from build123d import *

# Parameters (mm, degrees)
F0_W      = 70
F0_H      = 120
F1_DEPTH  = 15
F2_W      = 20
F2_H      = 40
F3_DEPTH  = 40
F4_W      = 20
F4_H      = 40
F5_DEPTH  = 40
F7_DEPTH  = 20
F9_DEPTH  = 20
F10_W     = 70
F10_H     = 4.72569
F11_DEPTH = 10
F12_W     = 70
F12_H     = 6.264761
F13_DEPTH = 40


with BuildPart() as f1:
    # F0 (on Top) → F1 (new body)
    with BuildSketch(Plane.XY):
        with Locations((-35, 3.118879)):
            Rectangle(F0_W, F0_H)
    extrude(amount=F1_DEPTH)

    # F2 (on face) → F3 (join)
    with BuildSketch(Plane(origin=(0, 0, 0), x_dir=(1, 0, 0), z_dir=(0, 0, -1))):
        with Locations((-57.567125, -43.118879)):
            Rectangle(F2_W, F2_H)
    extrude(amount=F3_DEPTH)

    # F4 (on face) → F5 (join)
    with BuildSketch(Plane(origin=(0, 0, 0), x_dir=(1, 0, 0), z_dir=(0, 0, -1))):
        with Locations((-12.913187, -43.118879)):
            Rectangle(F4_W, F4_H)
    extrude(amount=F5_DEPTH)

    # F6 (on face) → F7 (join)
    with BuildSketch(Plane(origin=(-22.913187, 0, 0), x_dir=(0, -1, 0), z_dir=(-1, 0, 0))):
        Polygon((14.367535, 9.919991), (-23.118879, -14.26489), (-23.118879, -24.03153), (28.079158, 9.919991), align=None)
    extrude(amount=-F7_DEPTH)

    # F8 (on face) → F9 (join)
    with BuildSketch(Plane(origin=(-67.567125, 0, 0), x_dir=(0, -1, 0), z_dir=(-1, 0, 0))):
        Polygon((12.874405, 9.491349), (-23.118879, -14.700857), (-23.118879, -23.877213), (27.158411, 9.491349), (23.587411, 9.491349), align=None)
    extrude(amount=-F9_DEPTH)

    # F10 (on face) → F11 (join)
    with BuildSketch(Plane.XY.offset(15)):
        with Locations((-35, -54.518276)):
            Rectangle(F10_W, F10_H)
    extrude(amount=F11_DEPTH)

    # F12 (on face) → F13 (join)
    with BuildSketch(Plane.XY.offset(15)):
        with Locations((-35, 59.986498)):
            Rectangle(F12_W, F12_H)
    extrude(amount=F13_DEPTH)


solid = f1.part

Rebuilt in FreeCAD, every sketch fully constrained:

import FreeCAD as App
import Part
import Sketcher
Q = App.Units.Quantity


def add_polygon(sketch, points):
    """Adds a closed chain of lines whose ends are joined by coincident constraints."""
    first, n = sketch.GeometryCount, len(points)
    for a, b in zip(points, points[1:] + points[:1]):
        sketch.addGeometry(Part.LineSegment(App.Vector(*a, 0), App.Vector(*b, 0)), False)
    for i in range(n):
        sketch.addConstraint(Sketcher.Constraint("Coincident", first + i, 2, first + (i + 1) % n, 1))

doc = App.newDocument("Part")
body = doc.addObject("PartDesign::Body", "Body")

# Sketch on XY plane
sketch1 = body.newObject("Sketcher::SketchObject", "Sketch")
sketch1.AttachmentSupport = (doc.getObject("XY_Plane"), [""])
sketch1.MapMode = "FlatFace"
add_polygon(sketch1, [(-70, 63), (-70, -57), (0, -57), (0, 63)])  # lines 0-3
sketch1.addConstraint([
    Sketcher.Constraint("Vertical", 0),
    Sketcher.Constraint("Horizontal", 1),
    Sketcher.Constraint("Vertical", 2),
    Sketcher.Constraint("Horizontal", 3),
    Sketcher.Constraint("PointOnObject", 1, 2, -2),
    Sketcher.Constraint("DistanceX", 1, 1, 1, 2, Q("70 mm")),
    Sketcher.Constraint("DistanceY", 0, 2, 0, 1, Q("120 mm")),
    Sketcher.Constraint("DistanceY", 0, 2, -1, 1, Q("56.881121 mm")),
])
pad1 = body.newObject("PartDesign::Pad", "Pad")
pad1.Profile = sketch1
pad1.Length = 15

# Sketch on XY plane
sketch2 = body.newObject("Sketcher::SketchObject", "Sketch001")
sketch2.AttachmentSupport = (doc.getObject("XY_Plane"), [""])
sketch2.MapMode = "FlatFace"
add_polygon(sketch2, [(-68, 23), (-68, 63), (-48, 63), (-48, 23)])  # lines 0-3
sketch2.addConstraint([
    Sketcher.Constraint("Vertical", 0),
    Sketcher.Constraint("Horizontal", 1),
    Sketcher.Constraint("Vertical", 2),
    Sketcher.Constraint("Horizontal", 3),
    Sketcher.Constraint("DistanceX", 1, 1, 1, 2, Q("20 mm")),
    Sketcher.Constraint("DistanceY", 0, 1, 0, 2, Q("40 mm")),
    Sketcher.Constraint("DistanceY", -1, 1, 0, 2, Q("63.118879 mm")),
    Sketcher.Constraint("DistanceX", 0, 2, -1, 1, Q("67.567125 mm")),
])
pad2 = body.newObject("PartDesign::Pad", "Pad001")
pad2.Profile = sketch2
pad2.Length = 40
pad2.Reversed = True

# Sketch on XY plane
sketch3 = body.newObject("Sketcher::SketchObject", "Sketch002")
sketch3.AttachmentSupport = (doc.getObject("XY_Plane"), [""])
sketch3.MapMode = "FlatFace"
add_polygon(sketch3, [(-23, 23), (-23, 63), (-3, 63), (-3, 23)])  # lines 0-3
sketch3.addConstraint([
    Sketcher.Constraint("Vertical", 0),
    Sketcher.Constraint("Horizontal", 1),
    Sketcher.Constraint("Vertical", 2),
    Sketcher.Constraint("Horizontal", 3),
    Sketcher.Constraint("DistanceX", 1, 1, 1, 2, Q("20 mm")),
    Sketcher.Constraint("DistanceY", 0, 1, 0, 2, Q("40 mm")),
    Sketcher.Constraint("DistanceY", -1, 1, 0, 2, Q("63.118879 mm")),
    Sketcher.Constraint("DistanceX", 0, 2, -1, 1, Q("22.913187 mm")),
])
pad3 = body.newObject("PartDesign::Pad", "Pad002")
pad3.Profile = sketch3
pad3.Length = 40
pad3.Reversed = True

# Sketch on YZ plane
sketch4 = body.newObject("Sketcher::SketchObject", "Sketch003")
sketch4.AttachmentSupport = (doc.getObject("YZ_Plane"), [""])
sketch4.MapMode = "FlatFace"
sketch4.AttachmentOffset = App.Placement(App.Vector(0, 0, -22.913187), App.Rotation())
add_polygon(sketch4, [(-14, 10), (23, -14), (23, -24), (-28, 10)])  # lines 0-3
sketch4.addConstraint([
    Sketcher.Constraint("Vertical", 1),
    Sketcher.Constraint("Horizontal", 3),
    Sketcher.Constraint("Angle", 2, Q("146.450008 deg")),
    Sketcher.Constraint("DistanceY", 1, 2, 1, 1, Q("9.76664 mm")),
    Sketcher.Constraint("Distance", 0, Q("44.610982 mm")),
    Sketcher.Constraint("Distance", 2, Q("61.432441 mm")),
    Sketcher.Constraint("DistanceX", -1, 1, 0, 2, Q("23.118879 mm")),
    Sketcher.Constraint("DistanceY", 0, 2, -1, 1, Q("14.26489 mm")),
])
pad4 = body.newObject("PartDesign::Pad", "Pad003")
pad4.Profile = sketch4
pad4.Length = 20

# Sketch on YZ plane
sketch5 = body.newObject("Sketcher::SketchObject", "Sketch004")
sketch5.AttachmentSupport = (doc.getObject("YZ_Plane"), [""])
sketch5.MapMode = "FlatFace"
sketch5.AttachmentOffset = App.Placement(App.Vector(0, 0, -67.567125), App.Rotation())
add_polygon(sketch5, [(-13, 9), (23, -15), (23, -24), (-27, 9)])  # lines 0-3
sketch5.addConstraint([
    Sketcher.Constraint("Vertical", 1),
    Sketcher.Constraint("Horizontal", 3),
    Sketcher.Constraint("Distance", 2, Q("60.34291 mm")),
    Sketcher.Constraint("DistanceX", 3, 1, 3, 2, Q("14.284006 mm")),
    Sketcher.Constraint("DistanceY", 1, 2, 1, 1, Q("9.176356 mm")),
    Sketcher.Constraint("DistanceX", -1, 1, 0, 2, Q("23.118879 mm")),
    Sketcher.Constraint("DistanceX", 2, 2, -1, 1, Q("27.158411 mm")),
    Sketcher.Constraint("DistanceY", -1, 1, 2, 2, Q("9.491349 mm")),
])
pad5 = body.newObject("PartDesign::Pad", "Pad004")
pad5.Profile = sketch5
pad5.Length = 20

# Sketch on XY plane
sketch6 = body.newObject("Sketcher::SketchObject", "Sketch005")
sketch6.AttachmentSupport = (doc.getObject("XY_Plane"), [""])
sketch6.MapMode = "FlatFace"
sketch6.AttachmentOffset = App.Placement(App.Vector(0, 0, 15), App.Rotation())
add_polygon(sketch6, [(-70, -52.2), (-70, -56.9), (0, -56.9), (0, -52.2)])  # lines 0-3
sketch6.addConstraint([
    Sketcher.Constraint("Vertical", 0),
    Sketcher.Constraint("Horizontal", 1),
    Sketcher.Constraint("Vertical", 2),
    Sketcher.Constraint("Horizontal", 3),
    Sketcher.Constraint("PointOnObject", 1, 2, -2),
    Sketcher.Constraint("DistanceX", 1, 1, 1, 2, Q("70 mm")),
    Sketcher.Constraint("DistanceY", 0, 2, 0, 1, Q("4.72569 mm")),
    Sketcher.Constraint("DistanceY", 0, 2, -1, 1, Q("56.881121 mm")),
])
pad6 = body.newObject("PartDesign::Pad", "Pad005")
pad6.Profile = sketch6
pad6.Length = 10

# Sketch on XY plane
sketch7 = body.newObject("Sketcher::SketchObject", "Sketch006")
sketch7.AttachmentSupport = (doc.getObject("XY_Plane"), [""])
sketch7.MapMode = "FlatFace"
sketch7.AttachmentOffset = App.Placement(App.Vector(0, 0, 15), App.Rotation())
add_polygon(sketch7, [(-70, 63), (-70, 57), (0, 57), (0, 63)])  # lines 0-3
sketch7.addConstraint([
    Sketcher.Constraint("Vertical", 0),
    Sketcher.Constraint("Horizontal", 1),
    Sketcher.Constraint("Vertical", 2),
    Sketcher.Constraint("Horizontal", 3),
    Sketcher.Constraint("PointOnObject", 1, 2, -2),
    Sketcher.Constraint("DistanceX", 1, 1, 1, 2, Q("70 mm")),
    Sketcher.Constraint("DistanceY", 0, 2, 0, 1, Q("6.264761 mm")),
    Sketcher.Constraint("DistanceY", -1, 1, 2, 2, Q("63.118879 mm")),
])
pad7 = body.newObject("PartDesign::Pad", "Pad006")
pad7.Profile = sketch7
pad7.Length = 40

doc.recompute()
